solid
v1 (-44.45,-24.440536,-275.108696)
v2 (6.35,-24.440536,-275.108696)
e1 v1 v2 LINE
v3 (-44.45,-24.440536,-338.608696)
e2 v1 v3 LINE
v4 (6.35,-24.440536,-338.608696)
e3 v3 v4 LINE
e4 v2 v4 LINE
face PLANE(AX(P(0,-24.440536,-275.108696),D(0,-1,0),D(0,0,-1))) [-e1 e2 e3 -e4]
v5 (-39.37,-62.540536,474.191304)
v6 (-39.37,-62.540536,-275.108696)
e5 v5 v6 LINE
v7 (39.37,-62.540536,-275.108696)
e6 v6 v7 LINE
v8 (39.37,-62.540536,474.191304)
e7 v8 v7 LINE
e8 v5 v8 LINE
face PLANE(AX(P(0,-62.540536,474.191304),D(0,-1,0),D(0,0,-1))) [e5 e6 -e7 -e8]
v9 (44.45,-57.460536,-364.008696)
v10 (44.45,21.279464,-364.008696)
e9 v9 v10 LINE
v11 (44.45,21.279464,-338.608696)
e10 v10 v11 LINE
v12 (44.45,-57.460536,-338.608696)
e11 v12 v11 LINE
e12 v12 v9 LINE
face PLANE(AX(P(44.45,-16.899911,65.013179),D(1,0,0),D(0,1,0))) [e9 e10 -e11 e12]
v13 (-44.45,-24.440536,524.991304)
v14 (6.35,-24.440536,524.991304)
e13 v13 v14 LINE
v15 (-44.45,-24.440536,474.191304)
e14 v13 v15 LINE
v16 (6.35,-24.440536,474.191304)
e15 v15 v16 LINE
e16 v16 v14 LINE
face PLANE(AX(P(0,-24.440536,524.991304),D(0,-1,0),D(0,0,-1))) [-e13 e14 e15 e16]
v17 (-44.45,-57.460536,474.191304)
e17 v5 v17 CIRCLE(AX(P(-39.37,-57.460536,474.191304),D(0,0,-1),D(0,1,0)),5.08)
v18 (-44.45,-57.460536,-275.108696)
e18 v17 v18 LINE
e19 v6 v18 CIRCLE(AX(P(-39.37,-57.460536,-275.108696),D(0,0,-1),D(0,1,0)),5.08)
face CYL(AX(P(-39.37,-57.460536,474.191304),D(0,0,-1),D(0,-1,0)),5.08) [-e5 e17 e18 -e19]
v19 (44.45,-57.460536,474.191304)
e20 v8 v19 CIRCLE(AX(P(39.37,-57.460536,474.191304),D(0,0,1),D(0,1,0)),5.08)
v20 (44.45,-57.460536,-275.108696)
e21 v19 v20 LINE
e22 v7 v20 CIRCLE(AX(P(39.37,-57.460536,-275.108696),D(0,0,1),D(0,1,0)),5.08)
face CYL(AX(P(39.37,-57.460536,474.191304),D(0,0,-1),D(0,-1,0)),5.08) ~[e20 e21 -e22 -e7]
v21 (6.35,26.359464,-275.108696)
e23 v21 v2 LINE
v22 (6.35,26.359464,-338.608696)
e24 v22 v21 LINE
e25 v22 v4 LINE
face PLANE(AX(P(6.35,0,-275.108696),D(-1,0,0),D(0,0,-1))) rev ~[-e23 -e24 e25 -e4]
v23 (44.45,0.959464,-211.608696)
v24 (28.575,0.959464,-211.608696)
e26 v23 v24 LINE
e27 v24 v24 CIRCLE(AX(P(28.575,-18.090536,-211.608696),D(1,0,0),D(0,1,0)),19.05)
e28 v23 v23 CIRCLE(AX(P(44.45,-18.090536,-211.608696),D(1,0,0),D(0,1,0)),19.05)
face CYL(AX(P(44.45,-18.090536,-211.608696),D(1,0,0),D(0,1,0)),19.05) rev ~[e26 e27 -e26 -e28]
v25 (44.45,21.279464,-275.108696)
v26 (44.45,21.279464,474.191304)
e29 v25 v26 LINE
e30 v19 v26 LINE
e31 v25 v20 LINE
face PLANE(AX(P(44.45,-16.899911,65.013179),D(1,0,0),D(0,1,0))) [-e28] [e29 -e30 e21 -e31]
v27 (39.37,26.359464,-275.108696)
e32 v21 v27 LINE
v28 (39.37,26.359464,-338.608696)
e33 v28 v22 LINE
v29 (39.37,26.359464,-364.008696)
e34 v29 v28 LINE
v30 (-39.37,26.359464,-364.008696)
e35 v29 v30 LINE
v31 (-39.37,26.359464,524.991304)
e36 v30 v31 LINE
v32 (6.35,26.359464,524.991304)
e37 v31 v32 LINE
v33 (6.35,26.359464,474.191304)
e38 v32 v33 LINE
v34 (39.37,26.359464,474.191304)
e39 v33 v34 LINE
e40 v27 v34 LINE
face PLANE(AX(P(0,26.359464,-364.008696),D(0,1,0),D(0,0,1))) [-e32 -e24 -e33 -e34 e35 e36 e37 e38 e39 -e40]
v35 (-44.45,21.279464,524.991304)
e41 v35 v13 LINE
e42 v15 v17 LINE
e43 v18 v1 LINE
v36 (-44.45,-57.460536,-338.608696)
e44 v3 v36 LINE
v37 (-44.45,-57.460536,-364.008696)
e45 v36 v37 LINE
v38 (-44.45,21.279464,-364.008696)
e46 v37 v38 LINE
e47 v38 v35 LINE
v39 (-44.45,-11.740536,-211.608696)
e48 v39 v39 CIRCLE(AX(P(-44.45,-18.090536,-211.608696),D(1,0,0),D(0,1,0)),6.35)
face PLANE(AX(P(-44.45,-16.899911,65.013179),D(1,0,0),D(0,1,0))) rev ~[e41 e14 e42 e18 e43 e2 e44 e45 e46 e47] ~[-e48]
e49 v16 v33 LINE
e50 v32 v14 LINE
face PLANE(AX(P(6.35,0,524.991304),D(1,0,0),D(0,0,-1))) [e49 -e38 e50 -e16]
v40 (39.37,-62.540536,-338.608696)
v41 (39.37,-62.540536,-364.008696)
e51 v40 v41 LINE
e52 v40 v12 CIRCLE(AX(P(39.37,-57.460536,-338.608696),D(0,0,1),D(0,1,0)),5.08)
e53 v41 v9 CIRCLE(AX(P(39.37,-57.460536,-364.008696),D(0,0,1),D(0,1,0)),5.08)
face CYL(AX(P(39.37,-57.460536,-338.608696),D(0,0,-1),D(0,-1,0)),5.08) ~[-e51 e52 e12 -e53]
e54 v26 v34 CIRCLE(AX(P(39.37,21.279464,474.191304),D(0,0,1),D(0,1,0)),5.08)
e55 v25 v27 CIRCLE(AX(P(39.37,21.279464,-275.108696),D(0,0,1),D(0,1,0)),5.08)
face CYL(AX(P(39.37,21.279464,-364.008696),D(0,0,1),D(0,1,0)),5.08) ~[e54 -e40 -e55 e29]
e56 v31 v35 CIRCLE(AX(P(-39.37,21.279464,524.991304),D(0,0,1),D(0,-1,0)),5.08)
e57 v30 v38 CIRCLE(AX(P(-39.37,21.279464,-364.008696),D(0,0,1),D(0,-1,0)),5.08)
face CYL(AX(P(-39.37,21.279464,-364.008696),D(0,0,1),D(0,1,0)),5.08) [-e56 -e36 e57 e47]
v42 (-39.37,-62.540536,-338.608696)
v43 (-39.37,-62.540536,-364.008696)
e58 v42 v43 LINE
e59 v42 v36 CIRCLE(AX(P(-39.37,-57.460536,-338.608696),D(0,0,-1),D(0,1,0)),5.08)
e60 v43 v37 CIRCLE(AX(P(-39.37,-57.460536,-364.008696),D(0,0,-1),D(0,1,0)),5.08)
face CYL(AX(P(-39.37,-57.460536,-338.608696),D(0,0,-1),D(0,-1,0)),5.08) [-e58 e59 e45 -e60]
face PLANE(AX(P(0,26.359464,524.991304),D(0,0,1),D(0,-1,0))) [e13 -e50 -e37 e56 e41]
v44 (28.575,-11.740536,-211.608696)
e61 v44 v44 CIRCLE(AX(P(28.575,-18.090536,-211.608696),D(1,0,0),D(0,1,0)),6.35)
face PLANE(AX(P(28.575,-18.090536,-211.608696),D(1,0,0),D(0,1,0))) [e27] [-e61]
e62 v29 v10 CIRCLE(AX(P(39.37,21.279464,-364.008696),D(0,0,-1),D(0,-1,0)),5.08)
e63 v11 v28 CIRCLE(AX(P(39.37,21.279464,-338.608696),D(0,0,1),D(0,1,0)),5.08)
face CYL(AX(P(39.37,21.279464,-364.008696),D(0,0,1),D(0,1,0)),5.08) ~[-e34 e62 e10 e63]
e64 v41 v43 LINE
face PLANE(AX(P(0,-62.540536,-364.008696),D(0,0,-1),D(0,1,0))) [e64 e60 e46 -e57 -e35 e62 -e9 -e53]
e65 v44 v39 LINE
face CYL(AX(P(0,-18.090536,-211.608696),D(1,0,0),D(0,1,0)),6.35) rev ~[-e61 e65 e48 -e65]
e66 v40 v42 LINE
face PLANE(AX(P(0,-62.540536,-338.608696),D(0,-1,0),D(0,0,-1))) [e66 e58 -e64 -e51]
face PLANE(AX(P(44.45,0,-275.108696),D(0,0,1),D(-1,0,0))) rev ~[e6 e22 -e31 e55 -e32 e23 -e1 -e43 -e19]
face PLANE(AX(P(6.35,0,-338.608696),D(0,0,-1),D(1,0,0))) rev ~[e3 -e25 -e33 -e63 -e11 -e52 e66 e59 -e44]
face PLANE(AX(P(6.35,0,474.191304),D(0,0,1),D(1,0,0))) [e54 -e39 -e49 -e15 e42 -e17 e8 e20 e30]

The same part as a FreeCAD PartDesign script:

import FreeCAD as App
import Part
import Sketcher
Q = App.Units.Quantity


def edges_at(feature, points):
    """Names of the edges that pass closest to the given points."""
    edges = feature.Shape.Edges
    near = lambda p: min(range(len(edges)), key=lambda i: edges[i].distToShape(Part.Vertex(*p))[0])
    return sorted({f"Edge{near(p) + 1}" for p in points})

doc = App.newDocument("Part")
body = doc.addObject("PartDesign::Body", "Body")

# Sketch on YZ plane
sketch1 = doc.addObject("Sketcher::SketchObject", "Sketch")
body.addObject(sketch1)
sketch1.AttachmentSupport = (doc.YZ_Plane, [""])
sketch1.MapMode = "FlatFace"
sketch1.addGeometry([
    Part.LineSegment(App.Vector(26, -364, 0), App.Vector(26, 525, 0)),  # 0
    Part.LineSegment(App.Vector(26, 525, 0), App.Vector(-24, 525, 0)),  # 1
    Part.LineSegment(App.Vector(-24, 525, 0), App.Vector(-24, 474, 0)),  # 2
    Part.LineSegment(App.Vector(-24, 474, 0), App.Vector(-63, 474, 0)),  # 3
    Part.LineSegment(App.Vector(-63, 474, 0), App.Vector(-63, -275, 0)),  # 4
    Part.LineSegment(App.Vector(-63, -275, 0), App.Vector(-24, -275, 0)),  # 5
    Part.LineSegment(App.Vector(-24, -275, 0), App.Vector(-24, -339, 0)),  # 6
    Part.LineSegment(App.Vector(-24, -339, 0), App.Vector(-63, -339, 0)),  # 7
    Part.LineSegment(App.Vector(-63, -339, 0), App.Vector(-63, -364, 0)),  # 8
    Part.LineSegment(App.Vector(-63, -364, 0), App.Vector(26, -364, 0)),  # 9
], False)
sketch1.addConstraint([
    Sketcher.Constraint("Coincident", 0, 2, 1, 1),
    Sketcher.Constraint("Coincident", 1, 2, 2, 1),
    Sketcher.Constraint("Coincident", 2, 2, 3, 1),
    Sketcher.Constraint("Coincident", 3, 2, 4, 1),
    Sketcher.Constraint("Coincident", 4, 2, 5, 1),
    Sketcher.Constraint("Coincident", 5, 2, 6, 1),
    Sketcher.Constraint("Coincident", 6, 2, 7, 1),
    Sketcher.Constraint("Coincident", 7, 2, 8, 1),
    Sketcher.Constraint("Coincident", 8, 2, 9, 1),
    Sketcher.Constraint("Coincident", 9, 2, 0, 1),
    Sketcher.Constraint("Vertical", 0),
    Sketcher.Constraint("Horizontal", 1),
    Sketcher.Constraint("Vertical", 2),
    Sketcher.Constraint("Horizontal", 3),
    Sketcher.Constraint("Vertical", 4),
    Sketcher.Constraint("Horizontal", 5),
    Sketcher.Constraint("Vertical", 6),
    Sketcher.Constraint("Horizontal", 7),
    Sketcher.Constraint("Vertical", 8),
    Sketcher.Constraint("Horizontal", 9),
    Sketcher.Constraint("Vertical", 2, 2, 5, 2),
    Sketcher.Constraint("Vertical", 4, 2, 7, 2),
    Sketcher.Constraint("Equal", 1, 2),
    Sketcher.Constraint("DistanceX", 1, 2, 1, 1, Q("2 in")),
    Sketcher.Constraint("DistanceY", 0, 1, 0, 2, Q("35 in")),
    Sketcher.Constraint("DistanceY", 8, 2, 8, 1, Q("1 in")),
    Sketcher.Constraint("DistanceX", 3, 2, 3, 1, Q("1.5 in")),
    Sketcher.Constraint("DistanceY", 4, 2, 4, 1, Q("29.5 in")),
    Sketcher.Constraint("DistanceX", -1, 1, 0, 2, 26.359464),
    Sketcher.Constraint("DistanceY", -1, 1, 0, 2, 524.991304),
])
pad1 = doc.addObject("PartDesign::Pad", "Pad")
body.addObject(pad1)
pad1.Profile = sketch1
pad1.Length = Q("3.5 in")
pad1.Midplane = True
doc.recompute()

fillet = doc.addObject("PartDesign::Fillet", "Fillet")
body.addObject(fillet)
fillet.Base = (pad1, edges_at(pad1, [
    (44.45, -62.541, 99.541),
    (44.45, -62.541, -351.309),
    (-44.45, -62.541, -351.309),
    (-44.45, -62.541, 99.541),
    (44.45, 26.359, 80.491),
    (-44.45, 26.359, 80.491),
]))
fillet.Radius = Q("0.2 in")

# Sketch on XZ plane
sketch2 = doc.addObject("Sketcher::SketchObject", "Sketch001")
body.addObject(sketch2)
sketch2.AttachmentSupport = (doc.XZ_Plane, [""])
sketch2.MapMode = "FlatFace"
sketch2.addGeometry([
    Part.LineSegment(App.Vector(44, 474, 0), App.Vector(44, 525, 0)),  # 0
    Part.LineSegment(App.Vector(44, 525, 0), App.Vector(6, 525, 0)),  # 1
    Part.LineSegment(App.Vector(6, 525, 0), App.Vector(6, 474, 0)),  # 2
    Part.LineSegment(App.Vector(6, 474, 0), App.Vector(44, 474, 0)),  # 3
    Part.LineSegment(App.Vector(44, -275, 0), App.Vector(6, -275, 0)),  # 4
    Part.LineSegment(App.Vector(6, -275, 0), App.Vector(6, -339, 0)),  # 5
    Part.LineSegment(App.Vector(6, -339, 0), App.Vector(44, -339, 0)),  # 6
    Part.LineSegment(App.Vector(44, -339, 0), App.Vector(44, -275, 0)),  # 7
], False)
sketch2.addConstraint([
    Sketcher.Constraint("Coincident", 0, 2, 1, 1),
    Sketcher.Constraint("Coincident", 1, 2, 2, 1),
    Sketcher.Constraint("Coincident", 2, 2, 3, 1),
    Sketcher.Constraint("Coincident", 3, 2, 0, 1),
    Sketcher.Constraint("Coincident", 4, 2, 5, 1),
    Sketcher.Constraint("Coincident", 5, 2, 6, 1),
    Sketcher.Constraint("Coincident", 6, 2, 7, 1),
    Sketcher.Constraint("Coincident", 7, 2, 4, 1),
    Sketcher.Constraint("Vertical", 0),
    Sketcher.Constraint("Horizontal", 1),
    Sketcher.Constraint("Vertical", 2),
    Sketcher.Constraint("Horizontal", 3),
    Sketcher.Constraint("Horizontal", 4),
    Sketcher.Constraint("Vertical", 5),
    Sketcher.Constraint("Horizontal", 6),
    Sketcher.Constraint("Vertical", 7),
    Sketcher.Constraint("Vertical", 2, 2, 4, 2),
    Sketcher.Constraint("Vertical", 3, 2, 6, 2),
    Sketcher.Constraint("DistanceY", 0, 1, 0, 2, Q("2 in")),
    Sketcher.Constraint("DistanceX", 1, 2, 1, 1, Q("1.5 in")),
    Sketcher.Constraint("DistanceY", 5, 2, 5, 1, Q("2.5 in")),
    Sketcher.Constraint("DistanceY", 5, 2, 2, 2, Q("32 in")),
    Sketcher.Constraint("DistanceX", -1, 1, 0, 2, Q("1.75 in")),
    Sketcher.Constraint("DistanceY", -1, 1, 0, 2, 524.991304),
])
pocket1 = doc.addObject("PartDesign::Pocket", "Pocket")
body.addObject(pocket1)
pocket1.Profile = sketch2
pocket1.Length = Q("4 in")
pocket1.Midplane = True

# Sketch on YZ plane
sketch3 = doc.addObject("Sketcher::SketchObject", "Sketch002")
body.addObject(sketch3)
sketch3.AttachmentSupport = (doc.YZ_Plane, [""])
sketch3.MapMode = "FlatFace"
sketch3.addGeometry(Part.Circle(App.Vector(-18, -212, 0), App.Vector(0, 0, 1), 6), False)
sketch3.addConstraint([
    Sketcher.Constraint("Diameter", 0, Q("0.5 in")),
    Sketcher.Constraint("DistanceX", 0, 3, -1, 1, 18.090536),
    Sketcher.Constraint("DistanceY", 0, 3, -1, 1, 211.608696),
])
pocket2 = doc.addObject("PartDesign::Pocket", "Pocket001")
body.addObject(pocket2)
pocket2.Profile = sketch3
pocket2.Type = "ThroughAll"
pocket2.Midplane = True

# Sketch on YZ plane
sketch4 = doc.addObject("Sketcher::SketchObject", "Sketch003")
body.addObject(sketch4)
sketch4.AttachmentSupport = (doc.YZ_Plane, [""])
sketch4.MapMode = "FlatFace"
sketch4.AttachmentOffset = App.Placement(App.Vector(0, 0, 1.75 * 25.4), App.Rotation())
sketch4.addGeometry([
    Part.Circle(App.Vector(-18, -212, 0), App.Vector(0, 0, 1), 19),
    Part.Circle(App.Vector(-18, -212, 0), App.Vector(0, 0, 1), 6),
], False)
sketch4.addConstraint([
    Sketcher.Constraint("Coincident", 1, 3, 0, 3),
    Sketcher.Constraint("Diameter", 0, Q("1.5 in")),
    Sketcher.Constraint("Diameter", 1, Q("0.5 in")),
    Sketcher.Constraint("DistanceX", 0, 3, -1, 1, 18.090536),
    Sketcher.Constraint("DistanceY", 0, 3, -1, 1, 211.608696),
])
pocket3 = doc.addObject("PartDesign::Pocket", "Pocket002")
body.addObject(pocket3)
pocket3.Profile = sketch4
pocket3.Length = Q("0.625 in")

doc.recompute()
